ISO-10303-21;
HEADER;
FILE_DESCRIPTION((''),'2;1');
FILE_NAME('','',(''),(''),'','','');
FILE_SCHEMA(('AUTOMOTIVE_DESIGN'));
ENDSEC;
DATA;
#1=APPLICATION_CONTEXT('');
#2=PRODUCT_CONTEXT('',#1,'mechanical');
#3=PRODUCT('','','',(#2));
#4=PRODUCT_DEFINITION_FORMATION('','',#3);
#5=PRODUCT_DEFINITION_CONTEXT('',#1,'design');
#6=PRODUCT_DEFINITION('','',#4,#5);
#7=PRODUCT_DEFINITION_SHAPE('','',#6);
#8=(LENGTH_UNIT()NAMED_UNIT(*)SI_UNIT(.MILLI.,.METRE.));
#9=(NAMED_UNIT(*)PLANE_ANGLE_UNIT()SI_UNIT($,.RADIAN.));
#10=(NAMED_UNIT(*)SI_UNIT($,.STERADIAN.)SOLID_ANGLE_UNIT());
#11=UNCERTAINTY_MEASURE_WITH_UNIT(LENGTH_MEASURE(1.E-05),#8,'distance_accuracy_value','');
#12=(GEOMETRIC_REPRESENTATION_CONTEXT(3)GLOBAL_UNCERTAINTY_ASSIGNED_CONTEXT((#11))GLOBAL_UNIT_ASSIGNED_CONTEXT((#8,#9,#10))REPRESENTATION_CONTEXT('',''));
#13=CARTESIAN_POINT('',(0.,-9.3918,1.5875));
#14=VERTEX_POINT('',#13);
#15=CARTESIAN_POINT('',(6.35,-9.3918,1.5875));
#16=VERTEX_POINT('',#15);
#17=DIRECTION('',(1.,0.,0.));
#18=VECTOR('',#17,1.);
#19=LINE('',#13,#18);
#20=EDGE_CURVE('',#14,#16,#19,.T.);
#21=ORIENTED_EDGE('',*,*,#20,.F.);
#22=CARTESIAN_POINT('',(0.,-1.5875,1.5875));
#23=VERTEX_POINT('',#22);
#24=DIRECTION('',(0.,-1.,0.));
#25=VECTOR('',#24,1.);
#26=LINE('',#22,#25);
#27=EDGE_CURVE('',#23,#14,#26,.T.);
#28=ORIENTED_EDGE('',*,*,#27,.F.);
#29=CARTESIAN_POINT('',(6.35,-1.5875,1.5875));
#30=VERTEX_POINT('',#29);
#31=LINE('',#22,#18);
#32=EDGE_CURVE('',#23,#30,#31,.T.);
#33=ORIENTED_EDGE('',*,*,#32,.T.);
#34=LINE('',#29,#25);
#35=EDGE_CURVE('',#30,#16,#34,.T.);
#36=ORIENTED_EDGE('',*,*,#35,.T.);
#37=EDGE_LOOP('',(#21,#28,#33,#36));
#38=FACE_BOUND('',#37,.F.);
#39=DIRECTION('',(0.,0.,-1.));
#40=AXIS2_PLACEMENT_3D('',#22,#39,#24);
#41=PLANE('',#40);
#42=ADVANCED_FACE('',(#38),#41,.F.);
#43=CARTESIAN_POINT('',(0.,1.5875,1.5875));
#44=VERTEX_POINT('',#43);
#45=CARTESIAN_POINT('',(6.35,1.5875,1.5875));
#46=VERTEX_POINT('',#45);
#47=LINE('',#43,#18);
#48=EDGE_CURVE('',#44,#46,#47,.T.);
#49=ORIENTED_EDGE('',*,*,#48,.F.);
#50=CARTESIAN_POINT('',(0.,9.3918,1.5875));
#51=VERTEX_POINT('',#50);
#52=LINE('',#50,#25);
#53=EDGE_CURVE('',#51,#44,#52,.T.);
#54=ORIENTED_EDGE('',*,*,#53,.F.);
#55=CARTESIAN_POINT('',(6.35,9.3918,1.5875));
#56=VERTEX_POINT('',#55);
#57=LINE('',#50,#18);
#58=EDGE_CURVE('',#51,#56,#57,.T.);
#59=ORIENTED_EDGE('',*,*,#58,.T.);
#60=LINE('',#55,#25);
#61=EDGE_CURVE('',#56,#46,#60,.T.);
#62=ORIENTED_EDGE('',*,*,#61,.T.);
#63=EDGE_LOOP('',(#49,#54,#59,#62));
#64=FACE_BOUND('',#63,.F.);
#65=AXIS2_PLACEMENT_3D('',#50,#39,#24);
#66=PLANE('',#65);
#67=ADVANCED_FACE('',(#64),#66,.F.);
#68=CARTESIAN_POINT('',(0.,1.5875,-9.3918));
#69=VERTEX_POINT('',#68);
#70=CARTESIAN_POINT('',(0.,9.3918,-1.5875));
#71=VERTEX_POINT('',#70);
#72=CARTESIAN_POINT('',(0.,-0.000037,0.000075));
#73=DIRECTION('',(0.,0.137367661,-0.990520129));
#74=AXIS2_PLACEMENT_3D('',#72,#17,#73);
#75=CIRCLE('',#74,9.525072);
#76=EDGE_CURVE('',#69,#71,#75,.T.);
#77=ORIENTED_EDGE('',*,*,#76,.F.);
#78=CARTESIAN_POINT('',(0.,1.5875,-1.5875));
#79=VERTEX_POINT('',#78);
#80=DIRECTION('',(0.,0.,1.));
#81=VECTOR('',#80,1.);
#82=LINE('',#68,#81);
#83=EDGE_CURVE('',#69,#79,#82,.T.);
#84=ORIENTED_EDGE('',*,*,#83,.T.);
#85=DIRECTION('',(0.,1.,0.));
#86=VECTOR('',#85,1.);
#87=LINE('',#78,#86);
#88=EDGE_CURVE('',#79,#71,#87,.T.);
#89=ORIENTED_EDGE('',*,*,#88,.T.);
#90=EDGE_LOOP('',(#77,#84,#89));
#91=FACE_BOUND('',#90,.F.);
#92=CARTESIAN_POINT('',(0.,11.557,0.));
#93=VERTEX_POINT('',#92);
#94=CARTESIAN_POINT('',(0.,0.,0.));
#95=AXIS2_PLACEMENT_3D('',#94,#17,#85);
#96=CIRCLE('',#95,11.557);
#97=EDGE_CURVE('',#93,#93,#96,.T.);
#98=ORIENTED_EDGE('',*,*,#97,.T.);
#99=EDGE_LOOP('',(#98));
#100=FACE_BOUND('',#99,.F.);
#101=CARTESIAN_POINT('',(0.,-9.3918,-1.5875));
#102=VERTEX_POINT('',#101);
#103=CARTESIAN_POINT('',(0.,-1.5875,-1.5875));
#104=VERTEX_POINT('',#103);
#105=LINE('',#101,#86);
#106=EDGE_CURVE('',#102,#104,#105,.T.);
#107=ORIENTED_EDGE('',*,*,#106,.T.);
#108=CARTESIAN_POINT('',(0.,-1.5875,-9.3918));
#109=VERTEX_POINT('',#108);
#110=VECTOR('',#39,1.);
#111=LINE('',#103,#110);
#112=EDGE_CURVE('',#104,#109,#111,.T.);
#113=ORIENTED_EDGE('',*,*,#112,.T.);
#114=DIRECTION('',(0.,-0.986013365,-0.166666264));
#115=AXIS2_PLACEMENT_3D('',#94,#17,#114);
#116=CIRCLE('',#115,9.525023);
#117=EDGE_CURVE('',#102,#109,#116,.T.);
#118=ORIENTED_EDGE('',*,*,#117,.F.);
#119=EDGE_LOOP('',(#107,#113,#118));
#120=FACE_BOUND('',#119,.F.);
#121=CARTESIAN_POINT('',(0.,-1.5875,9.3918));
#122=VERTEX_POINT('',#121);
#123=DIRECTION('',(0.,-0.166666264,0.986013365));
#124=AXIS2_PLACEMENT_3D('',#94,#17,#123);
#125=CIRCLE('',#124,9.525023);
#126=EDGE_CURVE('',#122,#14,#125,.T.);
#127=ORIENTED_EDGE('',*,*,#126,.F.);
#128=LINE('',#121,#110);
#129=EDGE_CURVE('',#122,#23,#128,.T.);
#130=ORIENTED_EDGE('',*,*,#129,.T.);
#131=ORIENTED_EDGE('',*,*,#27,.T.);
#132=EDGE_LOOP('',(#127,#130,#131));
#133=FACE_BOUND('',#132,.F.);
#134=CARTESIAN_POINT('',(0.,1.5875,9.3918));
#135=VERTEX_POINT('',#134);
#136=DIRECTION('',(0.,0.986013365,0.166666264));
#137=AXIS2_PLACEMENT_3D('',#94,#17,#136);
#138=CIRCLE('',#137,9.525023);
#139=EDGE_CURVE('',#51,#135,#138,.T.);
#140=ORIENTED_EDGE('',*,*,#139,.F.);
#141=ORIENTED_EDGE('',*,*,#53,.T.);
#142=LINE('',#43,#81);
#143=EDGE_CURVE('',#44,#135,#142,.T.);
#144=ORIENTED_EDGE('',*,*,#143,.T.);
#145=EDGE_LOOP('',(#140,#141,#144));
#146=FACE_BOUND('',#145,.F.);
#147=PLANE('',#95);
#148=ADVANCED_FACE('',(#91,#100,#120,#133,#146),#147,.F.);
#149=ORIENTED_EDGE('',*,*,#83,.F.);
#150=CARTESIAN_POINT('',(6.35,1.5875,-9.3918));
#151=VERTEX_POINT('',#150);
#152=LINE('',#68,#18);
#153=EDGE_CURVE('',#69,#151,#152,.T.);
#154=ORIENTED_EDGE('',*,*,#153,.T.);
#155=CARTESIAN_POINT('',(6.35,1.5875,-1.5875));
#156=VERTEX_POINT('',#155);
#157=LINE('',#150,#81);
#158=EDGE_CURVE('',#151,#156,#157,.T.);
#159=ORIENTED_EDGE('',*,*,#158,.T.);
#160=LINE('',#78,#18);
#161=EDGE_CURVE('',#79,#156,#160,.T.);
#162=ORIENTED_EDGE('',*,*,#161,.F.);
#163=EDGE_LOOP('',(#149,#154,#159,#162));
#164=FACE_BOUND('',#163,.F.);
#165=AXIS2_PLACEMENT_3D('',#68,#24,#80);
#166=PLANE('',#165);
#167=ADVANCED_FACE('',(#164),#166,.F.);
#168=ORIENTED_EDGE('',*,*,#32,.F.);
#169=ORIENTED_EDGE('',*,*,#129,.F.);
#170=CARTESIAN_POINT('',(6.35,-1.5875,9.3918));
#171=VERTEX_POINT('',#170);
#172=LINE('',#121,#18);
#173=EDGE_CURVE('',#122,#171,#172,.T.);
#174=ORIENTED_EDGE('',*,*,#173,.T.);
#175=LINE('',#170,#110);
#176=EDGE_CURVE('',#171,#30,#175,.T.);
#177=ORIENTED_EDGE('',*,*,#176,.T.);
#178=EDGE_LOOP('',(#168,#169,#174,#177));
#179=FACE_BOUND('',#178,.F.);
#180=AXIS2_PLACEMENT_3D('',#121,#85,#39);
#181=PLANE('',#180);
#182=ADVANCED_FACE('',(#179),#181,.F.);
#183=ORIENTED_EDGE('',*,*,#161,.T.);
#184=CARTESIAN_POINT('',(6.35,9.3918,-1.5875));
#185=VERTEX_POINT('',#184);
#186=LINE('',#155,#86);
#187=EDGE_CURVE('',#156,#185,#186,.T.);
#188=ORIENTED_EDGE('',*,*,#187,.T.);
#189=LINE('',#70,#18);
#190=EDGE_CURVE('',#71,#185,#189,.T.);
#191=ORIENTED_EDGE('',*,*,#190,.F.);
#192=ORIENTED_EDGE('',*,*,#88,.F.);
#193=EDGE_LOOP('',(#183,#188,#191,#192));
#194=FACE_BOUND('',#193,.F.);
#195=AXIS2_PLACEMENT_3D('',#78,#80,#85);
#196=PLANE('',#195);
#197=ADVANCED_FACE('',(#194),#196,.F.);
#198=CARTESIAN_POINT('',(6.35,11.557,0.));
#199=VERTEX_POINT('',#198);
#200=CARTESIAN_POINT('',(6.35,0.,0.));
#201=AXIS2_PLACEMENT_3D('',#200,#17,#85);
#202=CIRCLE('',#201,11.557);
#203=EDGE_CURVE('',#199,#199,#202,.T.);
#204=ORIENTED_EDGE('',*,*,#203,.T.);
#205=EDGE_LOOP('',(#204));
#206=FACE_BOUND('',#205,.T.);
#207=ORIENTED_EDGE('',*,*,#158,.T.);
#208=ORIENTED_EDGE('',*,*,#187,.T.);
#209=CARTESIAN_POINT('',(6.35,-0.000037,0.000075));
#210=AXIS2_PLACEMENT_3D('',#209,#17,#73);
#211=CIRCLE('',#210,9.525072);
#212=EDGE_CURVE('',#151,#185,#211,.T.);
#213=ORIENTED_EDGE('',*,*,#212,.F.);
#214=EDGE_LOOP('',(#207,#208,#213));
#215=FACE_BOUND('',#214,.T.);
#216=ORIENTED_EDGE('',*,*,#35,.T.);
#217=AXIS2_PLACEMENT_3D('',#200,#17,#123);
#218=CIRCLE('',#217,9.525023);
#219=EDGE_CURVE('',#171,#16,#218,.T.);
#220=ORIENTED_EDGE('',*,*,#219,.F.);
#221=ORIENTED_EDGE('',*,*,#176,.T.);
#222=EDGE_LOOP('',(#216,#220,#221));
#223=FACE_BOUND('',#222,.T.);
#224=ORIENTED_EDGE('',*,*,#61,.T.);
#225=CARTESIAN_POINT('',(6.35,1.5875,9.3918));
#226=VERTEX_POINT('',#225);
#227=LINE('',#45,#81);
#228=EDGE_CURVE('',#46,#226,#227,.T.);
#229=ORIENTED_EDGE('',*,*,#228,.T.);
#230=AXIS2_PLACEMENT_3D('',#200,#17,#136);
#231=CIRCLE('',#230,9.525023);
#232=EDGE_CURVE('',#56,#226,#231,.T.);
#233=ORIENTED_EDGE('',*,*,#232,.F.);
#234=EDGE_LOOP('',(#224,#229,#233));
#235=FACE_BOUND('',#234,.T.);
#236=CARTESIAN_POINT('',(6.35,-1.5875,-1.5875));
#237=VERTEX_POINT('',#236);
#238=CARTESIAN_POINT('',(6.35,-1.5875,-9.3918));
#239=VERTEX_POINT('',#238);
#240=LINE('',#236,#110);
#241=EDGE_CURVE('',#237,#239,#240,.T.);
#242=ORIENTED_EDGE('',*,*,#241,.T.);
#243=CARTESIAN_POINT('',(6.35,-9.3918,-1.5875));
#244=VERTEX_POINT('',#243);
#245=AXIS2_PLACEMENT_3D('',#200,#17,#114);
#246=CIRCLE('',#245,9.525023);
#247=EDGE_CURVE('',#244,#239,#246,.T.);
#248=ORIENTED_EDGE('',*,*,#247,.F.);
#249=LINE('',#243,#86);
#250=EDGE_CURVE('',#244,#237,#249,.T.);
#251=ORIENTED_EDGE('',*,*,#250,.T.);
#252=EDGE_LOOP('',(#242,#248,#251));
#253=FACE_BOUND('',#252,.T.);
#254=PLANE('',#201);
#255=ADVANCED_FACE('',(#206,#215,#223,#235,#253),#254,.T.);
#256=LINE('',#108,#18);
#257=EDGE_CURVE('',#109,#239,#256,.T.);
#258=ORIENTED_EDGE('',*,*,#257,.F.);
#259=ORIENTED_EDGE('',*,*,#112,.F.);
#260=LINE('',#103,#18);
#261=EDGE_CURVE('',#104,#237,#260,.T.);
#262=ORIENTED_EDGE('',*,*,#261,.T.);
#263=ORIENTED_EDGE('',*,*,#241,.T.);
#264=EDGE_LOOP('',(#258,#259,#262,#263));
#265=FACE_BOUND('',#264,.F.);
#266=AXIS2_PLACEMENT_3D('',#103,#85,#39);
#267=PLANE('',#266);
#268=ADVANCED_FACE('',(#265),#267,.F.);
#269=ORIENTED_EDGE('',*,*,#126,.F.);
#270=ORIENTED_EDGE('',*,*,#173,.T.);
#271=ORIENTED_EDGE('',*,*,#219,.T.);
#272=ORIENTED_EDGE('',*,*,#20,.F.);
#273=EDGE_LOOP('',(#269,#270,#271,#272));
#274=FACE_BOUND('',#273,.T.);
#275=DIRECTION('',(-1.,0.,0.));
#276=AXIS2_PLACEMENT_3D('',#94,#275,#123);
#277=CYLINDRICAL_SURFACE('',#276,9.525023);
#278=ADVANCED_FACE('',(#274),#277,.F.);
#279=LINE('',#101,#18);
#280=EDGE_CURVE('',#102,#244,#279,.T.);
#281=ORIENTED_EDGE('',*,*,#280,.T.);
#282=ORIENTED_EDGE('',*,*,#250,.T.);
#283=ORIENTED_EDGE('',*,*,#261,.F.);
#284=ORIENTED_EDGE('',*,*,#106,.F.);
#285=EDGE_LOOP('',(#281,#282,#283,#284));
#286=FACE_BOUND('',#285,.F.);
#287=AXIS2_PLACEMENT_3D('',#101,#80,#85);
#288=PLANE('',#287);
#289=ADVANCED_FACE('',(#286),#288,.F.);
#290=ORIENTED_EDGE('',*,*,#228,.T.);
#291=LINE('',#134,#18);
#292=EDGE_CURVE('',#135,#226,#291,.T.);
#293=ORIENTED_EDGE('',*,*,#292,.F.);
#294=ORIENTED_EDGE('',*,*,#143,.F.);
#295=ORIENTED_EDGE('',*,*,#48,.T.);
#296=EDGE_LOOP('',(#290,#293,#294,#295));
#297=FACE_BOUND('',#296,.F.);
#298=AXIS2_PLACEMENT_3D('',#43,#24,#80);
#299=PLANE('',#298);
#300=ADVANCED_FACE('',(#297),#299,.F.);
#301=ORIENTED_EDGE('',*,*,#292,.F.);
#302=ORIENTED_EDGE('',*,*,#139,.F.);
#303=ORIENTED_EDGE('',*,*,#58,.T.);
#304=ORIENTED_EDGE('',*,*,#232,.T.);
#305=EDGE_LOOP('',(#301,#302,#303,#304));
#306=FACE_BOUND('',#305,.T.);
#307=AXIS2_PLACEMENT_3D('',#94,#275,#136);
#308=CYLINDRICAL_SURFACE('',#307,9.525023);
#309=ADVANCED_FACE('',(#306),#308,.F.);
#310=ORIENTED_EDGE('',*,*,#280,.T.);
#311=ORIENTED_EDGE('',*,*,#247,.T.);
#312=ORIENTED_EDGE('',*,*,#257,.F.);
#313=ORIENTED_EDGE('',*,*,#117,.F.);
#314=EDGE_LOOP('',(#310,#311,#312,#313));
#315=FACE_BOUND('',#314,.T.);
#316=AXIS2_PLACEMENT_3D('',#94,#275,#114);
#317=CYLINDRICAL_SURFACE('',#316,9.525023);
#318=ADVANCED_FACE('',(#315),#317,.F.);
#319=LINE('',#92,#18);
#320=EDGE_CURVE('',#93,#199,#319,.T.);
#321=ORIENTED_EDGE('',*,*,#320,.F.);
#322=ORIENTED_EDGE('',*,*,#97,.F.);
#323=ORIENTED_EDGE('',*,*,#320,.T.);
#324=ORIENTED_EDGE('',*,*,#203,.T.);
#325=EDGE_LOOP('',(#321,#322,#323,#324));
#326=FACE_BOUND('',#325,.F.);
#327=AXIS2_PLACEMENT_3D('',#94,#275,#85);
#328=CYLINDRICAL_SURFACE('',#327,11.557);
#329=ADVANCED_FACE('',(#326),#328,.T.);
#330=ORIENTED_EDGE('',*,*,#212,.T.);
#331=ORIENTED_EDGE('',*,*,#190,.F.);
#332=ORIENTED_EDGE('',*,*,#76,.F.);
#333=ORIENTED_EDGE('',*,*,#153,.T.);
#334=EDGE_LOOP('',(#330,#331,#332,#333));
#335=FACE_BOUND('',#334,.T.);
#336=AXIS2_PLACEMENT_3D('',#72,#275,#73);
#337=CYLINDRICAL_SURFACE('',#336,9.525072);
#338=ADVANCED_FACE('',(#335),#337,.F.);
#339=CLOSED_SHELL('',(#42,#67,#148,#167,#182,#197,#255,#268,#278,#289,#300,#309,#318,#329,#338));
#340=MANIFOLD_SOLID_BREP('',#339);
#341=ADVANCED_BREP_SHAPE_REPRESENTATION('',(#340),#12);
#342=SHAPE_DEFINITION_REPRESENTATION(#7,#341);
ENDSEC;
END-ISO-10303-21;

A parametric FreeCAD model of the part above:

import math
import FreeCAD as App
import Part
import Sketcher

V = App.Vector
Q = App.Units.Quantity

doc = App.newDocument("Part")
params = doc.addObject("Spreadsheet::Sheet", "Params")
for row, (alias, value) in enumerate([
    ("sketch1_diameter", "0.91 in"),
    ("sketch1_radius", "0.375 in"),
    ("pad1_length", "0.25 in"),
], start=1):
    params.set(f"A{row}", alias)
    params.set(f"B{row}", "=" + value)
    params.setAlias(f"B{row}", alias)

body = doc.addObject("PartDesign::Body", "Body")

sketch1 = body.newObject("Sketcher::SketchObject", "Sketch")
sketch1.AttachmentSupport = (doc.getObject("YZ_Plane"), [""])
sketch1.MapMode = "FlatFace"
sketch1.addGeometry([
    Part.Circle(V(0, 0, 0), V(0, 0, 1), 12),
    Part.ArcOfCircle(Part.Circle(V(0, 0, 0), V(0, 0, 1), 10), math.radians(-170), math.radians(-100)),
    Part.LineSegment(V(-9, -2, 0), V(-2, -2, 0)),
    Part.LineSegment(V(-2, -2, 0), V(-2, -9, 0)),
    Part.ArcOfCircle(Part.Circle(V(0, 0, 0), V(0, 0, 1), 10), math.radians(-80), math.radians(-10)),
    Part.LineSegment(V(2, -9, 0), V(2, -2, 0)),
    Part.LineSegment(V(2, -2, 0), V(9, -2, 0)),
    Part.ArcOfCircle(Part.Circle(V(0, 0, 0), V(0, 0, 1), 10), math.radians(100), math.radians(170)),
    Part.LineSegment(V(-2, 9, 0), V(-2, 2, 0)),
    Part.LineSegment(V(-2, 2, 0), V(-9, 2, 0)),
    Part.ArcOfCircle(Part.Circle(V(0, 0, 0), V(0, 0, 1), 10), math.radians(10), math.radians(80)),
    Part.LineSegment(V(9, 2, 0), V(2, 2, 0)),
    Part.LineSegment(V(2, 2, 0), V(2, 9, 0)),
], False)
sketch1.addConstraint([
    Sketcher.Constraint("Coincident", 1, 1, 2, 1),
    Sketcher.Constraint("Coincident", 2, 2, 3, 1),
    Sketcher.Constraint("Coincident", 3, 2, 1, 2),
    Sketcher.Constraint("Coincident", 4, 1, 5, 1),
    Sketcher.Constraint("Coincident", 5, 2, 6, 1),
    Sketcher.Constraint("Coincident", 6, 2, 4, 2),
    Sketcher.Constraint("Coincident", 7, 1, 8, 1),
    Sketcher.Constraint("Coincident", 8, 2, 9, 1),
    Sketcher.Constraint("Coincident", 9, 2, 7, 2),
    Sketcher.Constraint("Coincident", 10, 1, 11, 1),
    Sketcher.Constraint("Coincident", 11, 2, 12, 1),
    Sketcher.Constraint("Coincident", 12, 2, 10, 2),
    Sketcher.Constraint("Horizontal", 2),
    Sketcher.Constraint("Vertical", 3),
    Sketcher.Constraint("Vertical", 5),
    Sketcher.Constraint("Horizontal", 6),
    Sketcher.Constraint("Vertical", 8),
    Sketcher.Constraint("Horizontal", 9),
    Sketcher.Constraint("Horizontal", 11),
    Sketcher.Constraint("Vertical", 12),
    Sketcher.Constraint("Coincident", 0, 3, -1, 1),
    Sketcher.Constraint("Coincident", 1, 3, -1, 1),
    Sketcher.Constraint("Coincident", 4, 3, -1, 1),
    Sketcher.Constraint("Coincident", 7, 3, -1, 1),
    Sketcher.Constraint("Coincident", 10, 3, -1, 1),
    Sketcher.Constraint("Equal", 1, 4),
    Sketcher.Constraint("Equal", 4, 7),
    Sketcher.Constraint("Equal", 7, 10),
    Sketcher.Constraint("Symmetric", 5, 2, 8, 2, -1, 1),
    Sketcher.Constraint("Symmetric", 2, 2, 11, 2, -1, 1),
    Sketcher.Constraint("Symmetric", 2, 2, 5, 2, -2),
    Sketcher.Constraint("Equal", 11, 3),
    Sketcher.Constraint("Diameter", 0, Q("0.91 in")),
    Sketcher.Constraint("Radius", 1, Q("0.375 in")),
    Sketcher.Constraint("DistanceY", 1, 1, -1, 1, Q("0.0625 in")),
])
sketch1.setExpression("Constraints[32]", "Params.sketch1_diameter")
sketch1.setExpression("Constraints[33]", "Params.sketch1_radius")
pad1 = body.newObject("PartDesign::Pad", "Pad")
pad1.Profile = sketch1
pad1.setExpression("Length", "Params.pad1_length")

doc.recompute()
